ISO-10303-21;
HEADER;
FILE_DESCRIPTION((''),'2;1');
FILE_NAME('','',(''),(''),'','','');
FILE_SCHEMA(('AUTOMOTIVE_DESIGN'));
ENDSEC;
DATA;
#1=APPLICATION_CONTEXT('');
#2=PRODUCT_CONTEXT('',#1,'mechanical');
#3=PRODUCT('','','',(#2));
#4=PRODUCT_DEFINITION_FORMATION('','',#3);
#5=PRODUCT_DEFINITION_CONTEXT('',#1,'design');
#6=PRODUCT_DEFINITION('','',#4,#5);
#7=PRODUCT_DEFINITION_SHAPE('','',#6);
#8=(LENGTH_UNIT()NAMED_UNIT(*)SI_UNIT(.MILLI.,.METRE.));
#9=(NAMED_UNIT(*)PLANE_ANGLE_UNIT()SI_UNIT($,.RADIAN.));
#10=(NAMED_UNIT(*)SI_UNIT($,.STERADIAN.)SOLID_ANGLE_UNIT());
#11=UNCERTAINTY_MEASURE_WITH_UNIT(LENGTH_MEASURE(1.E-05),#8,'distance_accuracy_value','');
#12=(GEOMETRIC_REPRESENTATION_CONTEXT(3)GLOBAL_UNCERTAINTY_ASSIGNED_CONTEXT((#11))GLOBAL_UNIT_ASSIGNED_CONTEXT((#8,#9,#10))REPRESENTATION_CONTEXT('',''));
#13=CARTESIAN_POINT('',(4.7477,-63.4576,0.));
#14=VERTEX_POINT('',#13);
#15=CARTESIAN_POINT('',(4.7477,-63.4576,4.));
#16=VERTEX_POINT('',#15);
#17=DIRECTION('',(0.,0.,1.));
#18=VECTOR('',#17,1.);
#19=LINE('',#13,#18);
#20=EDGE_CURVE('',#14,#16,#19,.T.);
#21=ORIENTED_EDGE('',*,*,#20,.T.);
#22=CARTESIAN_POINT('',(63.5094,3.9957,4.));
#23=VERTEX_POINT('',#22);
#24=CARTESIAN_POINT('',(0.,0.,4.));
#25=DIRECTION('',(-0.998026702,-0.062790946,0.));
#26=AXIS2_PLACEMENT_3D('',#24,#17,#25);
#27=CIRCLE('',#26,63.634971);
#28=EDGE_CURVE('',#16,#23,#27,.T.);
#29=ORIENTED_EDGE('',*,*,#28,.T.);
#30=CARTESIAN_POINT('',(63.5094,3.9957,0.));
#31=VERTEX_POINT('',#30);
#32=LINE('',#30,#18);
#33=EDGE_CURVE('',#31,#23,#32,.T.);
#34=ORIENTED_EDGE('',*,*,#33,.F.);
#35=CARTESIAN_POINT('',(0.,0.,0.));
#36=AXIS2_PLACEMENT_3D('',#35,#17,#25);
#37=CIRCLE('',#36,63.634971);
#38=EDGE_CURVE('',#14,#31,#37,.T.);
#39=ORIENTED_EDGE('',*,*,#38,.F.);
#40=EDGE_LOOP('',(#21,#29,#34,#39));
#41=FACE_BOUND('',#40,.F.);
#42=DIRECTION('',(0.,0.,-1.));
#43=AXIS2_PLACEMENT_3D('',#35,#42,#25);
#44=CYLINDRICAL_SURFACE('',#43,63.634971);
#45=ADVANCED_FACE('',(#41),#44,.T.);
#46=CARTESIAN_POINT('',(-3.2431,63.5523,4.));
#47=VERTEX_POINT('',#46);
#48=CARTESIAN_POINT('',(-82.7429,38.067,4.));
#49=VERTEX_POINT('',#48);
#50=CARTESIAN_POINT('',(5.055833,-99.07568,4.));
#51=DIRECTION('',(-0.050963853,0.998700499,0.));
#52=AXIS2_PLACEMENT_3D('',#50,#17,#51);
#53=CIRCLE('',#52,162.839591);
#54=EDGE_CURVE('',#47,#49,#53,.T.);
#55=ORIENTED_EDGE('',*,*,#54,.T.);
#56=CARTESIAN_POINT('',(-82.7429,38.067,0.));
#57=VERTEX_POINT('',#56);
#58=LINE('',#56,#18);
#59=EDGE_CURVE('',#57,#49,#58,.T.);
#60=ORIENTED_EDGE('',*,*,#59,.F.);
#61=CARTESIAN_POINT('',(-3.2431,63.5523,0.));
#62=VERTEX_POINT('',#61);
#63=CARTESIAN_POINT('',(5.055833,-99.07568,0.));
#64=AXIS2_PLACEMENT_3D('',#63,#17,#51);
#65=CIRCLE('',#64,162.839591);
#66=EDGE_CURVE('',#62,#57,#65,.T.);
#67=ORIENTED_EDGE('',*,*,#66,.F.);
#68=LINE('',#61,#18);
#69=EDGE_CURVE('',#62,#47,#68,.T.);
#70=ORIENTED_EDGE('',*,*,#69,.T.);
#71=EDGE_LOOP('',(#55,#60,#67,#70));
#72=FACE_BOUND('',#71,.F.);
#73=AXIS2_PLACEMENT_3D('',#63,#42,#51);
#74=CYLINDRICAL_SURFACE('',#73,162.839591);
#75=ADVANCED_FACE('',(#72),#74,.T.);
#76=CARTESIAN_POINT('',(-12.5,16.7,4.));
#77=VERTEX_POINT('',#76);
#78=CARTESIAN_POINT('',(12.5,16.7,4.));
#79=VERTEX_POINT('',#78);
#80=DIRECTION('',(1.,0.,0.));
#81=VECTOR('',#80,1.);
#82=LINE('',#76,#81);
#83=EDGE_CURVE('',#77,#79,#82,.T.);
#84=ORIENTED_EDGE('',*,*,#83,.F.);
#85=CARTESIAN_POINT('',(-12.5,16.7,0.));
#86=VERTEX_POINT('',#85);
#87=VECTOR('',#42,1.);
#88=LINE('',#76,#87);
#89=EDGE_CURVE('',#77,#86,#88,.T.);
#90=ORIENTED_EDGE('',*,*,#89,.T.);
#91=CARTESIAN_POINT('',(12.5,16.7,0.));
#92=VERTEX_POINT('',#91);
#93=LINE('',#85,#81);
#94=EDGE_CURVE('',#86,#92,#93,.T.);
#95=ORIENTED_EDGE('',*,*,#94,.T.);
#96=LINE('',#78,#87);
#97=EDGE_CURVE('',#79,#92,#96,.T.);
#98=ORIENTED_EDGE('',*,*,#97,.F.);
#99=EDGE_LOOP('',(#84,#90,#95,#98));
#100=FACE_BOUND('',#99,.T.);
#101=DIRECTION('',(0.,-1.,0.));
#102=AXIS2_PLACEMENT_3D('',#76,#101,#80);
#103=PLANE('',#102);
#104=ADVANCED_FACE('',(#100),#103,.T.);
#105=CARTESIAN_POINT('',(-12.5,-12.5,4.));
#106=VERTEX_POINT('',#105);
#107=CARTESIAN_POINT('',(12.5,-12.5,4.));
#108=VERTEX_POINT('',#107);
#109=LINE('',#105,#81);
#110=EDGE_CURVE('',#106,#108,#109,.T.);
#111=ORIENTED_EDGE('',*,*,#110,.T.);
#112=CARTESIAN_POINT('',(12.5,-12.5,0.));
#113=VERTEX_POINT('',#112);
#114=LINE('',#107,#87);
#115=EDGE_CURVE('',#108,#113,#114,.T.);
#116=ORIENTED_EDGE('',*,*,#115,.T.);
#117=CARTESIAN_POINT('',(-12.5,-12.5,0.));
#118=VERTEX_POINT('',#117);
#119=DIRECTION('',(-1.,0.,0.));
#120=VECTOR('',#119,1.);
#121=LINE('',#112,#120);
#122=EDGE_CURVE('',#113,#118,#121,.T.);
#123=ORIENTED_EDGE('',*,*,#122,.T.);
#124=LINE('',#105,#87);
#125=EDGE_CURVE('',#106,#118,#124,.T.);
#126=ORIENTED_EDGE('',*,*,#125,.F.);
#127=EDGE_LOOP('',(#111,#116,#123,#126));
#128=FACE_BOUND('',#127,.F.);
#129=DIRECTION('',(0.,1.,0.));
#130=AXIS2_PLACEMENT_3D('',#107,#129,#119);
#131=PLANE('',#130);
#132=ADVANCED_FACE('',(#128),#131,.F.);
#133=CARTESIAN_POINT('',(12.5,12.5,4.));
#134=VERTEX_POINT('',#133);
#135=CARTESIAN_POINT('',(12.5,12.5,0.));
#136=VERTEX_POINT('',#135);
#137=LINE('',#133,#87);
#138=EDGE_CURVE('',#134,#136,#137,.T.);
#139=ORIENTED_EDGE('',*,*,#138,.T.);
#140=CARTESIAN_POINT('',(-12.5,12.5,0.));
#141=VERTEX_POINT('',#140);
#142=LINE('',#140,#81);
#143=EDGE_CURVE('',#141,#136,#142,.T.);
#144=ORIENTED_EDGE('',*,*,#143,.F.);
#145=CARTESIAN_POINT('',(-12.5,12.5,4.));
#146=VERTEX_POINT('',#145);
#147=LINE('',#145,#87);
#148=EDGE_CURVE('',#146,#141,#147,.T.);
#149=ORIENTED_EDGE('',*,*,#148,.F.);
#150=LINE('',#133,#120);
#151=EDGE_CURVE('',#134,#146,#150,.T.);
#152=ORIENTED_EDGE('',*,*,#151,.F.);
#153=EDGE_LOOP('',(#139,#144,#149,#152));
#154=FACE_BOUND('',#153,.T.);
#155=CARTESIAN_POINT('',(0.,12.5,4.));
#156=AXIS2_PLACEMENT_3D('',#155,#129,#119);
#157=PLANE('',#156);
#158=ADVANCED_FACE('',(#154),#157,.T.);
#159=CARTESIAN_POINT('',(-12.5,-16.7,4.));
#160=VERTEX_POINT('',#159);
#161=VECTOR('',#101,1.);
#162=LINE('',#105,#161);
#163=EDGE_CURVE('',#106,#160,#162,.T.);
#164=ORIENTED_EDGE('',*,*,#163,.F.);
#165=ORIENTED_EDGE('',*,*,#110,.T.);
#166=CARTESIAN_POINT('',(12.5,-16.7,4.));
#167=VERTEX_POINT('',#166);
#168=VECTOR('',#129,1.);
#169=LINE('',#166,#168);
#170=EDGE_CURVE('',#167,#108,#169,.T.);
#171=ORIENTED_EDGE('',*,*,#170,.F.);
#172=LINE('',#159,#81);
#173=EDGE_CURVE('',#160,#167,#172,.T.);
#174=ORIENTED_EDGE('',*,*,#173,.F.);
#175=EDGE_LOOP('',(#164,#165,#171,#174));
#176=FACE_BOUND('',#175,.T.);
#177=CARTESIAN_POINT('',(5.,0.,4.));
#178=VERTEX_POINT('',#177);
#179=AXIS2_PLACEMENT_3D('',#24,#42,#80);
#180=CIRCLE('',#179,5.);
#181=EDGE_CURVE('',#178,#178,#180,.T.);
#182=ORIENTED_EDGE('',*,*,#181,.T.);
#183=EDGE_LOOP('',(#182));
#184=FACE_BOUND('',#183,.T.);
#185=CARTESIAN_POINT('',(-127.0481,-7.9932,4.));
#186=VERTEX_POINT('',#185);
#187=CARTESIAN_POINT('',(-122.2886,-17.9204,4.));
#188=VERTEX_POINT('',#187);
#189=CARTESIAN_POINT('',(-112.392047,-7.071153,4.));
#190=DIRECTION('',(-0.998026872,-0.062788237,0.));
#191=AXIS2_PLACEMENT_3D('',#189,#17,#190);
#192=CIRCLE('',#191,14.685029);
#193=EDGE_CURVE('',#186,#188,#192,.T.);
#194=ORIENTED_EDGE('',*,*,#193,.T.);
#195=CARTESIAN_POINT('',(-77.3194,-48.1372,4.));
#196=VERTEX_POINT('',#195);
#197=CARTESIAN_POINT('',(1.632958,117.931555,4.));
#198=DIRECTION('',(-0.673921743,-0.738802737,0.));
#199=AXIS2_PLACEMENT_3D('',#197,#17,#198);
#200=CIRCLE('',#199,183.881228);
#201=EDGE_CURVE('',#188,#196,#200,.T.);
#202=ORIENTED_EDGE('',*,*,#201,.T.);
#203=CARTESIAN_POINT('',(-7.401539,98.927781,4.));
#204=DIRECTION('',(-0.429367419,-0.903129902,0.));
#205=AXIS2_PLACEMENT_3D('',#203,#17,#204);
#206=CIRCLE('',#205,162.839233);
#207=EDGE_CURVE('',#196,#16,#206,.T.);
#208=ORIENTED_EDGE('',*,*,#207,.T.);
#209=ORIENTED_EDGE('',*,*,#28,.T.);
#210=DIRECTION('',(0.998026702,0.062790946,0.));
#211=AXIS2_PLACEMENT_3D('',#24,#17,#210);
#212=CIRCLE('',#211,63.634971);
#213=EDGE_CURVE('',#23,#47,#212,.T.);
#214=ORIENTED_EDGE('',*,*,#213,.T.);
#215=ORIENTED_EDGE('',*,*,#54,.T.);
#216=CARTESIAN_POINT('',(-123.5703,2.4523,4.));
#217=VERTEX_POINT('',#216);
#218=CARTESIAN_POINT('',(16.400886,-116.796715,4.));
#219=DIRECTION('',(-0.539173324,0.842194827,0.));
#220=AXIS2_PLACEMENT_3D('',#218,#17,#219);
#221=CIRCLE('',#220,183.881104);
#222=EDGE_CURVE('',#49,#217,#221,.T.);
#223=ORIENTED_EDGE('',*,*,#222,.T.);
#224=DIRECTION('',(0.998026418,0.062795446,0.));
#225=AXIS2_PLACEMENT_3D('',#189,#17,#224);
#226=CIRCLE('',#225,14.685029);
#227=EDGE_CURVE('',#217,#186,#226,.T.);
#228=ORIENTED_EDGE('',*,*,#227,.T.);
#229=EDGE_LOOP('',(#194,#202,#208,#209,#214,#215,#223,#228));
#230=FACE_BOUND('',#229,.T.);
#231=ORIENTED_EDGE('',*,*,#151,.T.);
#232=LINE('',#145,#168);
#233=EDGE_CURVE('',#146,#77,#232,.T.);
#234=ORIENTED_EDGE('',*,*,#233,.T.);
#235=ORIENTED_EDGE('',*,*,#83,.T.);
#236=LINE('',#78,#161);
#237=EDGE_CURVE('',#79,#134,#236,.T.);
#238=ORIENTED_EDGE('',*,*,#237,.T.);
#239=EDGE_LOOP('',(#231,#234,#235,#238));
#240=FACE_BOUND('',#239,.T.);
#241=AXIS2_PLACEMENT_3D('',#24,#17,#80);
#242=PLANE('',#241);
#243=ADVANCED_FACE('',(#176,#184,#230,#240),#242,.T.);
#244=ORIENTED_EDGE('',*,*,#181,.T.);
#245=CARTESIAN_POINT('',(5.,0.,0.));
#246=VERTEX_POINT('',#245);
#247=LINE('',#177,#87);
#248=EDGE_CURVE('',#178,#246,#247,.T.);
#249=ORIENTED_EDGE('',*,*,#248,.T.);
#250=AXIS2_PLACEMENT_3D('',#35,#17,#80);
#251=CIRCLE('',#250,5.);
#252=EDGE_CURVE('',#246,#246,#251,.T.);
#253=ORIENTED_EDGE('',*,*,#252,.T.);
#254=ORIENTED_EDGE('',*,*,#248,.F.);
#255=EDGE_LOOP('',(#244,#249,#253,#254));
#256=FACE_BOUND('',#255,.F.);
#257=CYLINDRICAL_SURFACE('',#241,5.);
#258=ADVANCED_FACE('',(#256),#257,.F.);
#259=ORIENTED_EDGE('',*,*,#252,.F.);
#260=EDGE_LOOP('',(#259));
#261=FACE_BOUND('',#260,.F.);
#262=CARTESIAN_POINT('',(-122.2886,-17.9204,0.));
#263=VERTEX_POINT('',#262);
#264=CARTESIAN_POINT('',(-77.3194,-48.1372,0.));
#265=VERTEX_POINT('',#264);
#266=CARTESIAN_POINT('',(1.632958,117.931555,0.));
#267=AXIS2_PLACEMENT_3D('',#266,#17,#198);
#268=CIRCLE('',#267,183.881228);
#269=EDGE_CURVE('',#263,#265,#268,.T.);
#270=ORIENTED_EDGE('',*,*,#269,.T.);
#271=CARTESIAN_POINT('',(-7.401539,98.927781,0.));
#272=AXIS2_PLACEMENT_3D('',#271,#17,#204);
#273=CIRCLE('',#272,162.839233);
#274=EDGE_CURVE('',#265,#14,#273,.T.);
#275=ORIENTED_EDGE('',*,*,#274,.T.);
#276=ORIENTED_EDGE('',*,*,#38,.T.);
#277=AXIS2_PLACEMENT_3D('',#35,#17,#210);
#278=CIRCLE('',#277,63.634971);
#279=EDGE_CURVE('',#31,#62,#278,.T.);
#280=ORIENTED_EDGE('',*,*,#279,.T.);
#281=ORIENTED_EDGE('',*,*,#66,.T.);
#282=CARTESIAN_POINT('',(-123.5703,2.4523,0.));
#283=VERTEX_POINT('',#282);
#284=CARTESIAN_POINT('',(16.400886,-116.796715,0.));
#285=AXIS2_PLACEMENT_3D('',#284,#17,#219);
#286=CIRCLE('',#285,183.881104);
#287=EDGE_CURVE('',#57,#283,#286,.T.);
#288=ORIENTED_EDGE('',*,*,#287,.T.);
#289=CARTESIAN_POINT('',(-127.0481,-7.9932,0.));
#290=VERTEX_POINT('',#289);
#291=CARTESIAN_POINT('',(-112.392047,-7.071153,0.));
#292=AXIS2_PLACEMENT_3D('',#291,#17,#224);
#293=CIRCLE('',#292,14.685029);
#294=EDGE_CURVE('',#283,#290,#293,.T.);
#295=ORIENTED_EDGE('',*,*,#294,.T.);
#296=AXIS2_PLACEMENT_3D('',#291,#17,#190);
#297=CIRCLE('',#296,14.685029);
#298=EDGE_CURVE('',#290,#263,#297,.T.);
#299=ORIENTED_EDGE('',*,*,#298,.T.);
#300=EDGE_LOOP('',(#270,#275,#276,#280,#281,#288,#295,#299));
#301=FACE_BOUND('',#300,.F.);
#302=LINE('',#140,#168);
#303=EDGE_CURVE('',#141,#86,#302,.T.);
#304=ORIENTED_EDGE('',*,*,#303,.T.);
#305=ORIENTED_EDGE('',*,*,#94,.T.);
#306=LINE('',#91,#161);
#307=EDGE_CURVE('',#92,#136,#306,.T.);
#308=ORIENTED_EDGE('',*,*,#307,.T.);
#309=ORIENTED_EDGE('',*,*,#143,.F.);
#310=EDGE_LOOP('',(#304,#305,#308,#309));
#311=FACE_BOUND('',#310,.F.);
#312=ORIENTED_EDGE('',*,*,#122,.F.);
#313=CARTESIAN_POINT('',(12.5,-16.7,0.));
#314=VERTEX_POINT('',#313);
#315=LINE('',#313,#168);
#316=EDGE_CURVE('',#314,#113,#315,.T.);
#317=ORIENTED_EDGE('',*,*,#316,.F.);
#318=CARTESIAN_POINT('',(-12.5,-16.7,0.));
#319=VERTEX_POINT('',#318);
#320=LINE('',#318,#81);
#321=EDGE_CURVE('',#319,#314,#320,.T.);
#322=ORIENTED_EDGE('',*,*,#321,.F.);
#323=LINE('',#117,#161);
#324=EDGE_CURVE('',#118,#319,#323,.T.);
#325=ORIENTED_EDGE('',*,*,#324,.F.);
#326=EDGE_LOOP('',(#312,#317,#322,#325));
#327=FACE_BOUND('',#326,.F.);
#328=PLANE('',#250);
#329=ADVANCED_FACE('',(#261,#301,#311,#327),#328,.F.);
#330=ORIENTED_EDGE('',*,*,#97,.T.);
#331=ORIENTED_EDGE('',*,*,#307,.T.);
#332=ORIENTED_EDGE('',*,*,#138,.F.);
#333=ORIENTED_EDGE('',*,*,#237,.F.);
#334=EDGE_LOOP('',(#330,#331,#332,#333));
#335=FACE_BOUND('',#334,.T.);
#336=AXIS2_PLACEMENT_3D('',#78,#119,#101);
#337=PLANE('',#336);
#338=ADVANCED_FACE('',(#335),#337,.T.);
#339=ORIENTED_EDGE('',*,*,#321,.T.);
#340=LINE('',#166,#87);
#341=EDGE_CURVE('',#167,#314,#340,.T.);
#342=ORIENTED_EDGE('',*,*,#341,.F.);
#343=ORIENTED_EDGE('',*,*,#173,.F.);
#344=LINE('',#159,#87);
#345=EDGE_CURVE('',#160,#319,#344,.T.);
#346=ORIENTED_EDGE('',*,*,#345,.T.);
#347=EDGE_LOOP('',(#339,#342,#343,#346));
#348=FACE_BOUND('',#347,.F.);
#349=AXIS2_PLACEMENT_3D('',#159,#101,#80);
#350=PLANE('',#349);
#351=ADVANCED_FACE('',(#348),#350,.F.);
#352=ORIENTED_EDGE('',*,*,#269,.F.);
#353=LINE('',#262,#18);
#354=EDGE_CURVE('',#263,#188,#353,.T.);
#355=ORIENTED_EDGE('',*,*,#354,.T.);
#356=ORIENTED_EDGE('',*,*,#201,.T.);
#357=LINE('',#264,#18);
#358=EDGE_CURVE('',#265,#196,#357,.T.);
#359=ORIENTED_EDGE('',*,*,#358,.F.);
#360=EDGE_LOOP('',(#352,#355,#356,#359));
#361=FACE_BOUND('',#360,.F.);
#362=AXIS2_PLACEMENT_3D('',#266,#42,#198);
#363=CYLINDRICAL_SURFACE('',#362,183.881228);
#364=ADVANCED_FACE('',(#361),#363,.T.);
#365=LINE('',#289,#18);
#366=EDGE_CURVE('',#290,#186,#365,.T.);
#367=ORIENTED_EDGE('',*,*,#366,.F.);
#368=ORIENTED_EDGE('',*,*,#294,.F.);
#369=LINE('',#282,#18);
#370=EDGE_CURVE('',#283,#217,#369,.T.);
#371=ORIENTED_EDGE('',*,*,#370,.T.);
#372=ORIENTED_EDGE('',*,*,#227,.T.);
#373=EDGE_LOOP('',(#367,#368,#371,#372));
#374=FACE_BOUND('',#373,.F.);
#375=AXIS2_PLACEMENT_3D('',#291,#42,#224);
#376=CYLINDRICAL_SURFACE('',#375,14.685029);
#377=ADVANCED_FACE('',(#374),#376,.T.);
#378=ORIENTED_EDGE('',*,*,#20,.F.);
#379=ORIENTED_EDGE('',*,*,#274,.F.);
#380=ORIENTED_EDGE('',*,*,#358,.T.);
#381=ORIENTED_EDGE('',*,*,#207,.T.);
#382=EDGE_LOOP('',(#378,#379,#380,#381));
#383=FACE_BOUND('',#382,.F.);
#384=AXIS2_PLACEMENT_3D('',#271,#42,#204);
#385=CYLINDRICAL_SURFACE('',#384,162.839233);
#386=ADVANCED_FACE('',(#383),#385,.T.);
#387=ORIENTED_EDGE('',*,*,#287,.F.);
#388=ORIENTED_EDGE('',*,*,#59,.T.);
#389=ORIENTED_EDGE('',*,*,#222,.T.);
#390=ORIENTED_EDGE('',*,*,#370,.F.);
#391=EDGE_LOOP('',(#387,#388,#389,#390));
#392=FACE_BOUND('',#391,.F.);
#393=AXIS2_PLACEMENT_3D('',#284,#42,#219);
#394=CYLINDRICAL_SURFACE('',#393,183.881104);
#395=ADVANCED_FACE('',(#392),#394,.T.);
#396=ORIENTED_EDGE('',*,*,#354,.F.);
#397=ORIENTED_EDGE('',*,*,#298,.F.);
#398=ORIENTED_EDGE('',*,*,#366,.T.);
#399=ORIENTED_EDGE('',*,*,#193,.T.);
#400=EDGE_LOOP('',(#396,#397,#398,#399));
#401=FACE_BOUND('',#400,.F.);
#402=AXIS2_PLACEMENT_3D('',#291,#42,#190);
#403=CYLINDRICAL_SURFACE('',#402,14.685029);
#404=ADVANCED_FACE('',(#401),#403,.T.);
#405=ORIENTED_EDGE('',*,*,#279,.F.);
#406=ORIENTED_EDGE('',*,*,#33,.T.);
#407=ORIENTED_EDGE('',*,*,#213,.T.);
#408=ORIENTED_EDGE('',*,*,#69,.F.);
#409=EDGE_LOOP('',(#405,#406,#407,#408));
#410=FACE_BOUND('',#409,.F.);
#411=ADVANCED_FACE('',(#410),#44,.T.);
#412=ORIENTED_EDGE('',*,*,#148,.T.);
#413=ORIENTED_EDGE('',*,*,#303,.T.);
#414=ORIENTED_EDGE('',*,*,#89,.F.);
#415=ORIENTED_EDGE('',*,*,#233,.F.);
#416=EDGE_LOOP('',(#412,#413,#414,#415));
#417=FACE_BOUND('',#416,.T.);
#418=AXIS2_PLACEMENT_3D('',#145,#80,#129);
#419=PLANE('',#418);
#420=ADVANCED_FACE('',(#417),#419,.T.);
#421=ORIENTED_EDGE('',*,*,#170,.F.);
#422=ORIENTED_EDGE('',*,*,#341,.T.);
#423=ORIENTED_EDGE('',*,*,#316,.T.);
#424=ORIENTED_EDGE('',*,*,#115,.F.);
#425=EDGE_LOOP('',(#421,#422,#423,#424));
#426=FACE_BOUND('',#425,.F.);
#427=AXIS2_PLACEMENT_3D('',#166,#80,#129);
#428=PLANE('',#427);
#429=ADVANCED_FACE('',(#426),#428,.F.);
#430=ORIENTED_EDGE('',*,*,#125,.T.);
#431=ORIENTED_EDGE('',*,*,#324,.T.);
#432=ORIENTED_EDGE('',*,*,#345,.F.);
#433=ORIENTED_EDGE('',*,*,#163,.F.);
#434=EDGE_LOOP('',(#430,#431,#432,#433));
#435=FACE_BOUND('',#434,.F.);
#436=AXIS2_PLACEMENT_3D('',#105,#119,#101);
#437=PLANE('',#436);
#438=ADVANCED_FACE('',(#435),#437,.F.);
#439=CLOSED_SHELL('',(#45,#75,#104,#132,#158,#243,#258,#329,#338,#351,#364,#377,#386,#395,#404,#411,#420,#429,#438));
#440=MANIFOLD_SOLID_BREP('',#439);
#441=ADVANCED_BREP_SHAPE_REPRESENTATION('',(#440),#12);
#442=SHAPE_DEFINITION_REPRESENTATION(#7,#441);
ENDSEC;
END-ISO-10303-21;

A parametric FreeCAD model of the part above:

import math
import FreeCAD as App
import Part
import Sketcher
from FreeCAD import Vector
Q = App.Units.Quantity

doc = App.newDocument("Part")
body = doc.addObject("PartDesign::Body", "Body")

sketch1 = body.newObject("Sketcher::SketchObject", "Sketch")
sketch1.AttachmentSupport = (doc.getObject("XY_Plane"), [""])
sketch1.MapMode = "FlatFace"
sketch1.addGeometry([
    Part.ArcOfCircle(Part.Circle(Vector(0, 0, 0), Vector(0, 0, 1), 63.634971), math.radians(-85.72128), math.radians(92.921293)),
    Part.ArcOfCircle(Part.Circle(Vector(5.0558, -99.0755, 0), Vector(0, 0, 1), 162.839409), math.radians(92.921271), math.radians(122.627393)),
    Part.ArcOfCircle(Part.Circle(Vector(16.400886, -116.796715, 0), Vector(0, 0, 1), 183.881104), math.radians(122.627381), math.radians(139.570529)),
    Part.ArcOfCircle(Part.Circle(Vector(-112.392, -7.0711, 0), Vector(0, 0, 1), 14.684979), math.radians(139.570522), math.radians(183.600064)),
    Part.ArcOfCircle(Part.Circle(Vector(-112.392, -7.0711, 0), Vector(0, 0, 1), 14.684979), math.radians(-176.399936), math.radians(-132.370692)),
    Part.ArcOfCircle(Part.Circle(Vector(1.632958, 117.931555, 0), Vector(0, 0, 1), 183.881228), math.radians(-132.370473), math.radians(-115.427335)),
    Part.ArcOfCircle(Part.Circle(Vector(-7.4015, 98.9279, 0), Vector(0, 0, 1), 162.839358), math.radians(-115.427416), math.radians(-85.721272)),
], False)
sketch1.addConstraint([
    Sketcher.Constraint("Coincident", 0, 2, 1, 1),
    Sketcher.Constraint("Coincident", 1, 2, 2, 1),
    Sketcher.Constraint("Coincident", 2, 2, 3, 1),
    Sketcher.Constraint("Coincident", 3, 2, 4, 1),
    Sketcher.Constraint("Coincident", 4, 2, 5, 1),
    Sketcher.Constraint("Coincident", 5, 2, 6, 1),
    Sketcher.Constraint("Coincident", 6, 2, 0, 1),
    Sketcher.Constraint("Coincident", 0, 3, -1, 1),
    Sketcher.Constraint("Coincident", 4, 3, 3, 3),
    Sketcher.Constraint("Radius", 0, Q("63.635 mm")),
    Sketcher.Constraint("Radius", 3, Q("14.685 mm")),
    Sketcher.Constraint("Radius", 2, Q("183.881 mm")),
    Sketcher.Constraint("Radius", 1, Q("162.8394 mm")),
    Sketcher.Constraint("Radius", 5, Q("183.8812 mm")),
    Sketcher.Constraint("Radius", 6, Q("162.8394 mm")),
    Sketcher.Constraint("DistanceY", 2, 2, 0, 2, Q("61.1 mm")),
    Sketcher.Constraint("DistanceY", 6, 2, 0, 2, Q("127.01 mm")),
    Sketcher.Constraint("DistanceX", -1, 1, 2, 3, Q("16.401 mm")),
    Sketcher.Constraint("DistanceX", 3, 3, -1, 1, Q("112.392 mm")),
    Sketcher.Constraint("DistanceY", 3, 3, -1, 1, Q("7.071 mm")),
    Sketcher.Constraint("DistanceX", -1, 1, 5, 3, Q("1.633 mm")),
    Sketcher.Constraint("DistanceX", 0, 2, -1, 1, Q("3.243 mm")),
    Sketcher.Constraint("DistanceX", 1, 2, -1, 1, Q("82.743 mm")),
    Sketcher.Constraint("DistanceX", 3, 2, -1, 1, Q("127.048 mm")),
    Sketcher.Constraint("DistanceY", 5, 2, 3, 3, Q("41.066 mm")),
    Sketcher.Constraint("DistanceX", 4, 2, -1, 1, Q("122.2886 mm")),
])
pad1 = body.newObject("PartDesign::Pad", "Pad")
pad1.Profile = sketch1
pad1.Length = 4

sketch2 = body.newObject("Sketcher::SketchObject", "Sketch001")
sketch2.AttachmentSupport = (doc.getObject("XY_Plane"), [""])
sketch2.MapMode = "FlatFace"
sketch2.AttachmentOffset = App.Placement(Vector(0, 0, 4), App.Rotation())
sketch2.addGeometry([
    Part.Circle(Vector(0, 0, 0), Vector(0, 0, 1), 5),
    Part.LineSegment(Vector(-12.5, 12.5, 0), Vector(12.5, 12.5, 0)),
    Part.LineSegment(Vector(12.5, 12.5, 0), Vector(12.5, 16.7, 0)),
    Part.LineSegment(Vector(12.5, 16.7, 0), Vector(-12.5, 16.7, 0)),
    Part.LineSegment(Vector(-12.5, 16.7, 0), Vector(-12.5, 12.5, 0)),
    Part.LineSegment(Vector(12.5, -12.5, 0), Vector(-12.5, -12.5, 0)),
    Part.LineSegment(Vector(-12.5, -12.5, 0), Vector(-12.5, -16.7, 0)),
    Part.LineSegment(Vector(-12.5, -16.7, 0), Vector(12.5, -16.7, 0)),
    Part.LineSegment(Vector(12.5, -16.7, 0), Vector(12.5, -12.5, 0)),
], False)
sketch2.addConstraint([
    Sketcher.Constraint("Coincident", 1, 2, 2, 1),
    Sketcher.Constraint("Coincident", 2, 2, 3, 1),
    Sketcher.Constraint("Coincident", 3, 2, 4, 1),
    Sketcher.Constraint("Coincident", 4, 2, 1, 1),
    Sketcher.Constraint("Coincident", 5, 2, 6, 1),
    Sketcher.Constraint("Coincident", 6, 2, 7, 1),
    Sketcher.Constraint("Coincident", 7, 2, 8, 1),
    Sketcher.Constraint("Coincident", 8, 2, 5, 1),
    Sketcher.Constraint("Horizontal", 1),
    Sketcher.Constraint("Vertical", 2),
    Sketcher.Constraint("Horizontal", 3),
    Sketcher.Constraint("Vertical", 4),
    Sketcher.Constraint("Horizontal", 5),
    Sketcher.Constraint("Vertical", 6),
    Sketcher.Constraint("Horizontal", 7),
    Sketcher.Constraint("Vertical", 8),
    Sketcher.Constraint("Coincident", 0, 3, -1, 1),
    Sketcher.Constraint("Symmetric", 1, 2, 5, 2, -1, 1),
    Sketcher.Constraint("Symmetric", 3, 2, 7, 2, -1, 1),
    Sketcher.Constraint("Vertical", 4, 2, 5, 2),
    Sketcher.Constraint("Diameter", 0, Q("10 mm")),
    Sketcher.Constraint("DistanceX", 1, 1, 1, 2, Q("25 mm")),
    Sketcher.Constraint("DistanceY", 2, 1, 2, 2, Q("4.2 mm")),
    Sketcher.Constraint("DistanceY", 5, 2, 4, 2, Q("25 mm")),
])
pocket1 = body.newObject("PartDesign::Pocket", "Pocket")
pocket1.Profile = sketch2
pocket1.Length = 4

doc.recompute()
